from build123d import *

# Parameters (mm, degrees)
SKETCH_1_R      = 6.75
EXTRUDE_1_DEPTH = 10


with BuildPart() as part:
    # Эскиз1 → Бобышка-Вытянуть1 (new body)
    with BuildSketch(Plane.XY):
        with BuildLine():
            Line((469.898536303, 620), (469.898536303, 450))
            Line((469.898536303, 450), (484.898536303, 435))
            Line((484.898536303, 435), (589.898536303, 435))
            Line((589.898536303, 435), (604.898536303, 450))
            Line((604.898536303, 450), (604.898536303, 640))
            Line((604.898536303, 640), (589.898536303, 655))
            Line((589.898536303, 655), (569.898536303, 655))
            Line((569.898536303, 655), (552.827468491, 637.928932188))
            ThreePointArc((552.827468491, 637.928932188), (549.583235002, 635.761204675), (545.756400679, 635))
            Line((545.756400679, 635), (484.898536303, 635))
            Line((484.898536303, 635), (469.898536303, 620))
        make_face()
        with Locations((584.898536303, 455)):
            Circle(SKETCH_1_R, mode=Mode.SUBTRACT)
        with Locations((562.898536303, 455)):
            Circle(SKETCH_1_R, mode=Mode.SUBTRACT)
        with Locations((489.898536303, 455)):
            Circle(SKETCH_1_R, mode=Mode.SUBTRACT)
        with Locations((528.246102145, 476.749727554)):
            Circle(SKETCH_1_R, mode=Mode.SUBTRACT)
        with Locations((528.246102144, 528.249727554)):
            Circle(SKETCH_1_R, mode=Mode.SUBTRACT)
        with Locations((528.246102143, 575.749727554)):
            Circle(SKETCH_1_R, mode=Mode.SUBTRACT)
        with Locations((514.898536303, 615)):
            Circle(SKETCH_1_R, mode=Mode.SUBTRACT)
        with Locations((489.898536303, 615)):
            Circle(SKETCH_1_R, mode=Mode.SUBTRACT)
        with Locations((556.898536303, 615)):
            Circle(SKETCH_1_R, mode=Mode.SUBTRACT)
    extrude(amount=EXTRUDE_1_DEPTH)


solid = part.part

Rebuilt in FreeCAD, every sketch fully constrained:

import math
import FreeCAD as App
import Part
import Sketcher
from FreeCAD import Vector
Q = App.Units.Quantity

doc = App.newDocument("Part")
params = doc.addObject("Spreadsheet::Sheet", "Params")
for row, (alias, value) in enumerate([
    ("sketch1_radius", "10 mm"),
    ("sketch1_diameter", "13.5 mm"),
    ("sketch1_width", "105 mm"),
    ("sketch1_width2", "20 mm"),
    ("sketch1_height", "170 mm"),
    ("pad1_length", "10 mm"),
], start=1):
    params.set(f"A{row}", alias)
    params.set(f"B{row}", "=" + value)
    params.setAlias(f"B{row}", alias)

body = doc.addObject("PartDesign::Body", "Body")

# Sketch on XY plane
sketch1 = doc.addObject("Sketcher::SketchObject", "Sketch")
body.addObject(sketch1)
sketch1.AttachmentSupport = (doc.XY_Plane, [""])
sketch1.MapMode = "FlatFace"
sketch1.addGeometry([
    Part.LineSegment(Vector(469.898536, 620, 0), Vector(469.898536, 450, 0)),  # 0
    Part.LineSegment(Vector(469.898536, 450, 0), Vector(484.898536, 435, 0)),  # 1
    Part.LineSegment(Vector(484.898536, 435, 0), Vector(589.898536, 435, 0)),  # 2
    Part.LineSegment(Vector(589.898536, 435, 0), Vector(604.898536, 450, 0)),  # 3
    Part.LineSegment(Vector(604.898536, 450, 0), Vector(604.898536, 640, 0)),  # 4
    Part.LineSegment(Vector(604.898536, 640, 0), Vector(589.898536, 655, 0)),  # 5
    Part.LineSegment(Vector(589.898536, 655, 0), Vector(569.898536, 655, 0)),  # 6
    Part.LineSegment(Vector(569.898536, 655, 0), Vector(552.827468, 637.928932, 0)),  # 7
    Part.ArcOfCircle(Part.Circle(Vector(545.756401, 645, 0), Vector(0, 0, 1), 10), math.radians(-90), math.radians(-45)),  # 8
    Part.LineSegment(Vector(545.756401, 635, 0), Vector(484.898536, 635, 0)),  # 9
    Part.LineSegment(Vector(484.898536, 635, 0), Vector(469.898536, 620, 0)),  # 10
    Part.Circle(Vector(489.898536, 455, 0), Vector(0, 0, 1), 6.75),  # 11
    Part.Circle(Vector(528.246102, 476.749728, 0), Vector(0, 0, 1), 6.75),  # 12
    Part.Circle(Vector(528.246102, 528.249728, 0), Vector(0, 0, 1), 6.75),  # 13
    Part.Circle(Vector(562.898536, 455, 0), Vector(0, 0, 1), 6.75),  # 14
    Part.Circle(Vector(584.898536, 455, 0), Vector(0, 0, 1), 6.75),  # 15
    Part.Circle(Vector(528.246102, 575.749728, 0), Vector(0, 0, 1), 6.75),  # 16
    Part.Circle(Vector(489.898536, 615, 0), Vector(0, 0, 1), 6.75),  # 17
    Part.Circle(Vector(514.898536, 615, 0), Vector(0, 0, 1), 6.75),  # 18
    Part.Circle(Vector(556.898536, 615, 0), Vector(0, 0, 1), 6.75),  # 19
], False)
sketch1.addConstraint([
    Sketcher.Constraint("Coincident", 0, 2, 1, 1),
    Sketcher.Constraint("Coincident", 1, 2, 2, 1),
    Sketcher.Constraint("Coincident", 2, 2, 3, 1),
    Sketcher.Constraint("Coincident", 3, 2, 4, 1),
    Sketcher.Constraint("Coincident", 4, 2, 5, 1),
    Sketcher.Constraint("Coincident", 5, 2, 6, 1),
    Sketcher.Constraint("Coincident", 6, 2, 7, 1),
    Sketcher.Constraint("Tangent", 7, 2, 8, 2),
    Sketcher.Constraint("Tangent", 8, 1, 9, 1),
    Sketcher.Constraint("Coincident", 9, 2, 10, 1),
    Sketcher.Constraint("Coincident", 10, 2, 0, 1),
    Sketcher.Constraint("Vertical", 0),
    Sketcher.Constraint("Horizontal", 2),
    Sketcher.Constraint("Vertical", 4),
    Sketcher.Constraint("Horizontal", 6),
    Sketcher.Constraint("Horizontal", 9),
    Sketcher.Constraint("Equal", 11, 12),
    Sketcher.Constraint("Equal", 12, 13),
    Sketcher.Constraint("Equal", 13, 14),
    Sketcher.Constraint("Equal", 14, 15),
    Sketcher.Constraint("Equal", 15, 16),
    Sketcher.Constraint("Equal", 16, 17),
    Sketcher.Constraint("Equal", 17, 18),
    Sketcher.Constraint("Equal", 18, 19),
    Sketcher.Constraint("Perpendicular", 1, 3),
    Sketcher.Constraint("Perpendicular", 3, 5),
    Sketcher.Constraint("Perpendicular", 5, 7),
    Sketcher.Constraint("Parallel", 7, 10),
    Sketcher.Constraint("Horizontal", 11, 3, 14, 3),
    Sketcher.Constraint("Horizontal", 14, 3, 15, 3),
    Sketcher.Constraint("Horizontal", 17, 3, 18, 3),
    Sketcher.Constraint("Horizontal", 18, 3, 19, 3),
    Sketcher.Constraint("Horizontal", 0, 2, 3, 2),
    Sketcher.Constraint("Vertical", 12, 3, 13, 3),
    Sketcher.Constraint("Vertical", 13, 3, 16, 3),
    Sketcher.Constraint("Vertical", 11, 3, 17, 3),
    Sketcher.Constraint("Vertical", 2, 2, 5, 2),
    Sketcher.Constraint("Vertical", 1, 2, 9, 2),
    Sketcher.Constraint("Equal", 1, 3),
    Sketcher.Constraint("Radius", 8, Q("10 mm")),
    Sketcher.Constraint("Diameter", 11, Q("13.5 mm")),
    Sketcher.Constraint("DistanceX", 2, 1, 2, 2, Q("105 mm")),
    Sketcher.Constraint("DistanceX", 6, 2, 6, 1, Q("20 mm")),
    Sketcher.Constraint("DistanceY", 0, 2, 0, 1, Q("170 mm")),
    Sketcher.Constraint("DistanceY", 4, 1, 4, 2, Q("190 mm")),
    Sketcher.Constraint("DistanceY", -1, 1, 8, 3, Q("645 mm")),
    Sketcher.Constraint("DistanceY", -1, 1, 11, 3, Q("455 mm")),
    Sketcher.Constraint("DistanceY", -1, 1, 17, 3, Q("615 mm")),
    Sketcher.Constraint("DistanceY", -1, 1, 0, 2, Q("450 mm")),
    Sketcher.Constraint("DistanceX", 11, 3, 14, 3, Q("73 mm")),
    Sketcher.Constraint("DistanceX", 14, 3, 15, 3, Q("22 mm")),
    Sketcher.Constraint("DistanceY", 12, 3, 16, 3, Q("99 mm")),
    Sketcher.Constraint("DistanceX", 17, 3, 18, 3, Q("25 mm")),
    Sketcher.Constraint("DistanceX", 18, 3, 19, 3, Q("42 mm")),
    Sketcher.Constraint("DistanceX", 0, 2, 11, 3, Q("20 mm")),
    Sketcher.Constraint("DistanceY", 12, 3, 13, 3, Q("51.5 mm")),
    Sketcher.Constraint("DistanceX", -1, 1, 8, 3, Q("545.756401 mm")),
    Sketcher.Constraint("DistanceX", 12, 3, 8, 3, Q("17.510299 mm")),
    Sketcher.Constraint("DistanceY", -1, 1, 12, 3, Q("476.749728 mm")),
])
sketch1.setExpression("Constraints[39]", "Params.sketch1_radius")
sketch1.setExpression("Constraints[40]", "Params.sketch1_diameter")
sketch1.setExpression("Constraints[41]", "Params.sketch1_width")
sketch1.setExpression("Constraints[42]", "Params.sketch1_width2")
sketch1.setExpression("Constraints[43]", "Params.sketch1_height")
pad1 = doc.addObject("PartDesign::Pad", "Pad")
body.addObject(pad1)
pad1.Profile = sketch1
pad1.setExpression("Length", "Params.pad1_length")

doc.recompute()
